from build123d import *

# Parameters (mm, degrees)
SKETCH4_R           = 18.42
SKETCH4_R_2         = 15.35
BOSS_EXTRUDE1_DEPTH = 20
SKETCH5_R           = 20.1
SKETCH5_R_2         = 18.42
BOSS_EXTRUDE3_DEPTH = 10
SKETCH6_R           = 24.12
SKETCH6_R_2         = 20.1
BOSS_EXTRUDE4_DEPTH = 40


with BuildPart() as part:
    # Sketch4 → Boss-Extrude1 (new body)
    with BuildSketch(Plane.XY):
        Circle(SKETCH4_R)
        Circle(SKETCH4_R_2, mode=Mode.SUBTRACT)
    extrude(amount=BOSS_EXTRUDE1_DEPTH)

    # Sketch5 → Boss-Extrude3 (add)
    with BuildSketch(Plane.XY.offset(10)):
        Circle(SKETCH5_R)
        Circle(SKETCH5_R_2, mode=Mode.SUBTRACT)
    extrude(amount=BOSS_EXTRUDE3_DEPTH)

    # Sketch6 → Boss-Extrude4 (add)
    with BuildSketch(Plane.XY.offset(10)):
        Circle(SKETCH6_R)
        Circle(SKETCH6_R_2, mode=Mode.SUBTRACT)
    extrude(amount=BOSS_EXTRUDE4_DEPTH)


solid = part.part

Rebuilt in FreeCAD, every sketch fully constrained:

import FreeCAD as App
import Part
import Sketcher
from FreeCAD import Vector
Q = App.Units.Quantity

doc = App.newDocument("Part")
body = doc.addObject("PartDesign::Body", "Body")

# Sketch on XY plane
sketch1 = doc.addObject("Sketcher::SketchObject", "Sketch")
body.addObject(sketch1)
sketch1.AttachmentSupport = (doc.XY_Plane, [""])
sketch1.MapMode = "FlatFace"
sketch1.addGeometry([
    Part.Circle(Vector(0, 0, 0), Vector(0, 0, 1), 18),
    Part.Circle(Vector(0, 0, 0), Vector(0, 0, 1), 15),
], False)
sketch1.addConstraint([
    Sketcher.Constraint("Coincident", 0, 3, -1, 1),
    Sketcher.Constraint("Coincident", 1, 3, -1, 1),
    Sketcher.Constraint("Diameter", 1, Q("30.7 mm")),
    Sketcher.Constraint("Diameter", 0, Q("36.84 mm")),
])
pad1 = doc.addObject("PartDesign::Pad", "Pad")
body.addObject(pad1)
pad1.Profile = sketch1
pad1.Length = 20

# Sketch on XY plane
sketch2 = doc.addObject("Sketcher::SketchObject", "Sketch001")
body.addObject(sketch2)
sketch2.AttachmentSupport = (doc.XY_Plane, [""])
sketch2.MapMode = "FlatFace"
sketch2.AttachmentOffset = App.Placement(Vector(0, 0, 10), App.Rotation())
sketch2.addGeometry([
    Part.Circle(Vector(0, 0, 0), Vector(0, 0, 1), 20),
    Part.Circle(Vector(0, 0, 0), Vector(0, 0, 1), 18),
], False)
sketch2.addConstraint([
    Sketcher.Constraint("Coincident", 0, 3, -1, 1),
    Sketcher.Constraint("Coincident", 1, 3, -1, 1),
    Sketcher.Constraint("Diameter", 0, Q("40.2 mm")),
    Sketcher.Constraint("Diameter", 1, Q("36.84 mm")),
])
pad2 = doc.addObject("PartDesign::Pad", "Pad001")
body.addObject(pad2)
pad2.Profile = sketch2
pad2.Length = 10

# Sketch on XY plane
sketch3 = doc.addObject("Sketcher::SketchObject", "Sketch002")
body.addObject(sketch3)
sketch3.AttachmentSupport = (doc.XY_Plane, [""])
sketch3.MapMode = "FlatFace"
sketch3.AttachmentOffset = App.Placement(Vector(0, 0, 10), App.Rotation())
sketch3.addGeometry([
    Part.Circle(Vector(0, 0, 0), Vector(0, 0, 1), 24),
    Part.Circle(Vector(0, 0, 0), Vector(0, 0, 1), 20),
], False)
sketch3.addConstraint([
    Sketcher.Constraint("Coincident", 0, 3, -1, 1),
    Sketcher.Constraint("Coincident", 1, 3, -1, 1),
    Sketcher.Constraint("Diameter", 1, Q("40.2 mm")),
    Sketcher.Constraint("Diameter", 0, Q("48.24 mm")),
])
pad3 = doc.addObject("PartDesign::Pad", "Pad002")
body.addObject(pad3)
pad3.Profile = sketch3
pad3.Length = 40

doc.recompute()
